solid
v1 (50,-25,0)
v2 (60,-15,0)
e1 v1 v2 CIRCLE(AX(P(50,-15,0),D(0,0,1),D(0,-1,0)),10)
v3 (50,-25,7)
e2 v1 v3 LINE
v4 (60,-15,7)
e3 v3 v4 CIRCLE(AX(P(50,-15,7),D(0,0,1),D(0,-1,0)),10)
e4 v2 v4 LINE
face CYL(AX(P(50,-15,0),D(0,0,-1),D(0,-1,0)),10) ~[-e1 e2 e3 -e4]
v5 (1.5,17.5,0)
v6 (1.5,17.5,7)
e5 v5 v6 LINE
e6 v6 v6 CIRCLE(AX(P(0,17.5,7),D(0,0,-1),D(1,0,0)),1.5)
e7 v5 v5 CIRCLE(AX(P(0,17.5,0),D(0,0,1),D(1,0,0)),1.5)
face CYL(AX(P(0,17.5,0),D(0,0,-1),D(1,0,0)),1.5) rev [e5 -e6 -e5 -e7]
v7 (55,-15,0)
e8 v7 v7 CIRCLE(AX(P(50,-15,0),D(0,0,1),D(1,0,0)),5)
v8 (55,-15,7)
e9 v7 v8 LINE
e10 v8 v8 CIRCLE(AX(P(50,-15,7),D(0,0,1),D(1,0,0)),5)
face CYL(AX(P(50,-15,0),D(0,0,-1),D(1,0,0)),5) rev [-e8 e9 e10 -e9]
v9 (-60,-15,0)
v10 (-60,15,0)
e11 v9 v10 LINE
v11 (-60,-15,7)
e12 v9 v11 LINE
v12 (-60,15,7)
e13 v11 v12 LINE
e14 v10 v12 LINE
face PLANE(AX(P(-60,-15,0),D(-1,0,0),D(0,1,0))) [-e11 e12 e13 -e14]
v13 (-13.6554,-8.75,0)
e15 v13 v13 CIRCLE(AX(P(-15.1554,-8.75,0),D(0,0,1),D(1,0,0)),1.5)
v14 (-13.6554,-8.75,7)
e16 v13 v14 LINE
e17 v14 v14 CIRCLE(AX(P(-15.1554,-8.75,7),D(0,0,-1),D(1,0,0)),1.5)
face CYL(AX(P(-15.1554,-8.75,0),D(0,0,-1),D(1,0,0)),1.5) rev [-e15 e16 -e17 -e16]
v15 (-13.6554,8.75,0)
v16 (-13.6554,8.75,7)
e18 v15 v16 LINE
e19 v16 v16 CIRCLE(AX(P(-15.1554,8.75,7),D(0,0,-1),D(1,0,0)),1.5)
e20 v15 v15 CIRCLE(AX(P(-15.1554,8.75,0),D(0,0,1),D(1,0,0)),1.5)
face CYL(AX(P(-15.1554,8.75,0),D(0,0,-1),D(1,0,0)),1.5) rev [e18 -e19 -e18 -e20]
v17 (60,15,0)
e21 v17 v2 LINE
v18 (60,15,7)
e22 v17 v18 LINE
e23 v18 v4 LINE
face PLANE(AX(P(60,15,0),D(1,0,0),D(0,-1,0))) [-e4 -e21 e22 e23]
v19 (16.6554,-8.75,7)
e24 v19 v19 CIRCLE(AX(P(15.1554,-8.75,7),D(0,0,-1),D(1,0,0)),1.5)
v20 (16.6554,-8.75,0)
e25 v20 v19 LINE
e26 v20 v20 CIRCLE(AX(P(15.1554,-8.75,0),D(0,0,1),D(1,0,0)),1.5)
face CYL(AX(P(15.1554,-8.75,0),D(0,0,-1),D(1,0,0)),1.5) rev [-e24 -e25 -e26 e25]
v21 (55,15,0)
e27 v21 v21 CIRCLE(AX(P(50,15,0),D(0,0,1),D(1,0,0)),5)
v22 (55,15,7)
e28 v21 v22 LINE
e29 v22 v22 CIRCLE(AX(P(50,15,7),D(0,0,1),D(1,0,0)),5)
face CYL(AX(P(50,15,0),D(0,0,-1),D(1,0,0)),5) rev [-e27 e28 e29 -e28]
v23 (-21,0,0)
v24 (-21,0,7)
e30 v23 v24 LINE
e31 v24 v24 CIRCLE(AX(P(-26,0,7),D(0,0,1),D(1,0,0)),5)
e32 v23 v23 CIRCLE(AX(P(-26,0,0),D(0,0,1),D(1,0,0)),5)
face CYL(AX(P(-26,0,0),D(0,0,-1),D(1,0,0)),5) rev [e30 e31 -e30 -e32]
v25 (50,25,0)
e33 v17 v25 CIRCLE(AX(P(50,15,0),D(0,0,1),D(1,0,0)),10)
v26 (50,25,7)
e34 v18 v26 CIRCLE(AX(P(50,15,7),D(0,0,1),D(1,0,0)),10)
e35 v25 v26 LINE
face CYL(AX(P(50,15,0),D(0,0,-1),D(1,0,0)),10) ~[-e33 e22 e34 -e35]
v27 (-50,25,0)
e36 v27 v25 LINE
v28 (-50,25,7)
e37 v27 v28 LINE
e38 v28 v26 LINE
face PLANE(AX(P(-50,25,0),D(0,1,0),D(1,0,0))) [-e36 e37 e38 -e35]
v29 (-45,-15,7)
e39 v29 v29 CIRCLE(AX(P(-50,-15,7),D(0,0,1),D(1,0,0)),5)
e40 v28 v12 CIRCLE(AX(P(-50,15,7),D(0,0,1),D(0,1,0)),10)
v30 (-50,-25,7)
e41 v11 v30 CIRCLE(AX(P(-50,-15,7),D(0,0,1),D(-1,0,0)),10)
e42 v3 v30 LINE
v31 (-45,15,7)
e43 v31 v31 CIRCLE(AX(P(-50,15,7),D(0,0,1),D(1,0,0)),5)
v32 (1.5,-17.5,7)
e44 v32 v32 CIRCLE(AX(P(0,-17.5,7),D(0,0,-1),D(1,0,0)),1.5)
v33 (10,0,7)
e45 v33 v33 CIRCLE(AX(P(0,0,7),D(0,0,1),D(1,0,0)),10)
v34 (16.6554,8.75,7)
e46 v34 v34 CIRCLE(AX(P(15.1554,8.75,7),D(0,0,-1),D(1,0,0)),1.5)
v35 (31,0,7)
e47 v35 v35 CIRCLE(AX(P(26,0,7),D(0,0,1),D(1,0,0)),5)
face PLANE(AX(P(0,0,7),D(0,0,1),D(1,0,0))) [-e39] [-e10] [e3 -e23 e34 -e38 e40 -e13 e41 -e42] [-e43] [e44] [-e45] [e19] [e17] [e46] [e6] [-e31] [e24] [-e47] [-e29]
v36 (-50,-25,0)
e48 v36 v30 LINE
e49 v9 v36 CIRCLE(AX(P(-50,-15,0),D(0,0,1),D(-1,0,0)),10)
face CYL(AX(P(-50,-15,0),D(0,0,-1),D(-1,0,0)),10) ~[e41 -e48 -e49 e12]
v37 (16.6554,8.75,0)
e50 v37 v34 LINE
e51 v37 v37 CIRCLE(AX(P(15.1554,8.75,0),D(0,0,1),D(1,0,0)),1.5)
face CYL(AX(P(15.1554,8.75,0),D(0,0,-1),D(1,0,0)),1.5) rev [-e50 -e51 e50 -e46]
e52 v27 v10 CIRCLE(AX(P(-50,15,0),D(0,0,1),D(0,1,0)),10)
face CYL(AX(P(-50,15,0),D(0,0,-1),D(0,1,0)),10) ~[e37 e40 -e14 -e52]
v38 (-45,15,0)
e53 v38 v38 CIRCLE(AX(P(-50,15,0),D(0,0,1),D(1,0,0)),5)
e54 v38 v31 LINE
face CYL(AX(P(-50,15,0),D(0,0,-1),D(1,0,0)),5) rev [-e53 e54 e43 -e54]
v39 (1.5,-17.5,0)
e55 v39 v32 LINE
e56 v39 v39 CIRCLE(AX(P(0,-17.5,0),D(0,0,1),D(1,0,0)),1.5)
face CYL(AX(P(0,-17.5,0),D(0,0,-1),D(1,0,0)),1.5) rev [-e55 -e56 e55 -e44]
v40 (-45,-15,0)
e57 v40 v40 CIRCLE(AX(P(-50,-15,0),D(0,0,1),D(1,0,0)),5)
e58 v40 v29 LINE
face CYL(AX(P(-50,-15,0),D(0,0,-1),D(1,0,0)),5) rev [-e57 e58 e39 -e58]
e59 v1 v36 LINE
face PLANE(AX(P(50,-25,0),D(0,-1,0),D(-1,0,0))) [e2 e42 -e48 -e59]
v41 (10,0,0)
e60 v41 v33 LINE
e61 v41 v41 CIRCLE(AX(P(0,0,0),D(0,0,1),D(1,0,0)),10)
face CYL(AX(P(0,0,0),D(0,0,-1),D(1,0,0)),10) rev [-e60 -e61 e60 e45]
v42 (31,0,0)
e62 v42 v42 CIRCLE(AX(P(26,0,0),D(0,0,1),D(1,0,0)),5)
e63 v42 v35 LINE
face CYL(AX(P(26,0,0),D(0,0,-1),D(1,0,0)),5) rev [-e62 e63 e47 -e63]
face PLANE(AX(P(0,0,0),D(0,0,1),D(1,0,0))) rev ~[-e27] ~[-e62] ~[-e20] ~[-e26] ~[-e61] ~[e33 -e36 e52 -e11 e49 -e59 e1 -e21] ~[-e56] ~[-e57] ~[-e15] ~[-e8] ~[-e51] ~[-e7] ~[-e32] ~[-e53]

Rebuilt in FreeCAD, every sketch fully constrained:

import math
import FreeCAD as App
import Part
import Sketcher
from FreeCAD import Vector
Q = App.Units.Quantity

doc = App.newDocument("Part")
params = doc.addObject("Spreadsheet::Sheet", "Params")
for row, (alias, value) in enumerate([
    ("sketch1_width", "3.937 in"),
    ("pad1_length", "0.2755906 in"),
], start=1):
    params.set(f"A{row}", alias)
    params.set(f"B{row}", "=" + value)
    params.setAlias(f"B{row}", alias)

body = doc.addObject("PartDesign::Body", "Body")

sketch1 = body.newObject("Sketcher::SketchObject", "Sketch")
sketch1.AttachmentSupport = (doc.getObject("XY_Plane"), [""])
sketch1.MapMode = "FlatFace"
sketch1.addGeometry(Part.LineSegment(Vector(-50, -25, 0), Vector(50, -25, 0)), False)
sketch1.addGeometry(Part.ArcOfCircle(Part.Circle(Vector(50, -15, 0), Vector(0, 0, 1), 10), math.radians(-90), math.radians(0)), False)
sketch1.addGeometry(Part.LineSegment(Vector(60, -15, 0), Vector(60, 15, 0)), False)
sketch1.addGeometry(Part.ArcOfCircle(Part.Circle(Vector(50, 15, 0), Vector(0, 0, 1), 10), math.radians(0), math.radians(90)), False)
sketch1.addGeometry(Part.LineSegment(Vector(50, 25, 0), Vector(-50, 25, 0)), False)
sketch1.addGeometry(Part.ArcOfCircle(Part.Circle(Vector(-50, 15, 0), Vector(0, 0, 1), 10), math.radians(90), math.radians(180)), False)
sketch1.addGeometry(Part.LineSegment(Vector(-60, 15, 0), Vector(-60, -15, 0)), False)
sketch1.addGeometry(Part.ArcOfCircle(Part.Circle(Vector(-50, -15, 0), Vector(0, 0, 1), 10), math.radians(180), math.radians(270)), False)
sketch1.addGeometry(Part.Circle(Vector(-50, -15, 0), Vector(0, 0, 1), 5), False)
sketch1.addGeometry(Part.Circle(Vector(50, -15, 0), Vector(0, 0, 1), 5), False)
sketch1.addGeometry(Part.Circle(Vector(-26, 0, 0), Vector(0, 0, 1), 5), False)
sketch1.addGeometry(Part.Circle(Vector(-50, 15, 0), Vector(0, 0, 1), 5), False)
sketch1.addGeometry(Part.Circle(Vector(0, 17.5, 0), Vector(0, 0, 1), 1.5), False)
sketch1.addGeometry(Part.Circle(Vector(-15.2, 8.8, 0), Vector(0, 0, 1), 1.5), False)
sketch1.addGeometry(Part.Circle(Vector(-15.2, -8.8, 0), Vector(0, 0, 1), 1.5), False)
sketch1.addGeometry(Part.Circle(Vector(0, -17.5, 0), Vector(0, 0, 1), 1.5), False)
sketch1.addGeometry(Part.Circle(Vector(15.2, -8.8, 0), Vector(0, 0, 1), 1.5), False)
sketch1.addGeometry(Part.Circle(Vector(15.2, 8.8, 0), Vector(0, 0, 1), 1.5), False)
sketch1.addGeometry(Part.Circle(Vector(26, 0, 0), Vector(0, 0, 1), 5), False)
sketch1.addGeometry(Part.Circle(Vector(50, 15, 0), Vector(0, 0, 1), 5), False)
sketch1.addGeometry(Part.Circle(Vector(0, 0, 0), Vector(0, 0, 1), 10), False)
sketch1.addConstraint(Sketcher.Constraint("Tangent", 0, 2, 1, 1))
sketch1.addConstraint(Sketcher.Constraint("Tangent", 1, 2, 2, 1))
sketch1.addConstraint(Sketcher.Constraint("Tangent", 2, 2, 3, 1))
sketch1.addConstraint(Sketcher.Constraint("Tangent", 3, 2, 4, 1))
sketch1.addConstraint(Sketcher.Constraint("Tangent", 4, 2, 5, 1))
sketch1.addConstraint(Sketcher.Constraint("Tangent", 5, 2, 6, 1))
sketch1.addConstraint(Sketcher.Constraint("Tangent", 6, 2, 7, 1))
sketch1.addConstraint(Sketcher.Constraint("Tangent", 7, 2, 0, 1))
sketch1.addConstraint(Sketcher.Constraint("Horizontal", 0))
sketch1.addConstraint(Sketcher.Constraint("Vertical", 2))
sketch1.addConstraint(Sketcher.Constraint("Horizontal", 4))
sketch1.addConstraint(Sketcher.Constraint("Vertical", 6))
sketch1.addConstraint(Sketcher.Constraint("Coincident", 20, 3, -1, 1))
sketch1.addConstraint(Sketcher.Constraint("Coincident", 8, 3, 7, 3))
sketch1.addConstraint(Sketcher.Constraint("Coincident", 9, 3, 1, 3))
sketch1.addConstraint(Sketcher.Constraint("Coincident", 11, 3, 5, 3))
sketch1.addConstraint(Sketcher.Constraint("Coincident", 19, 3, 3, 3))
sketch1.addConstraint(Sketcher.Constraint("Equal", 1, 3))
sketch1.addConstraint(Sketcher.Constraint("Equal", 3, 5))
sketch1.addConstraint(Sketcher.Constraint("Equal", 5, 7))
sketch1.addConstraint(Sketcher.Constraint("Equal", 8, 9))
sketch1.addConstraint(Sketcher.Constraint("Equal", 9, 10))
sketch1.addConstraint(Sketcher.Constraint("Equal", 10, 11))
sketch1.addConstraint(Sketcher.Constraint("Equal", 12, 13))
sketch1.addConstraint(Sketcher.Constraint("Equal", 13, 14))
sketch1.addConstraint(Sketcher.Constraint("Equal", 14, 15))
sketch1.addConstraint(Sketcher.Constraint("Equal", 15, 16))
sketch1.addConstraint(Sketcher.Constraint("Equal", 16, 17))
sketch1.addConstraint(Sketcher.Constraint("Equal", 11, 18))
sketch1.addConstraint(Sketcher.Constraint("Equal", 18, 19))
sketch1.addConstraint(Sketcher.Constraint("Equal", 7, 20))
sketch1.addConstraint(Sketcher.Constraint("Symmetric", 1, 3, 5, 3, -1, 1))
sketch1.addConstraint(Sketcher.Constraint("Symmetric", 12, 3, 15, 3, -1, 1))
sketch1.addConstraint(Sketcher.Constraint("Symmetric", 13, 3, 16, 3, -1, 1))
sketch1.addConstraint(Sketcher.Constraint("Symmetric", 14, 3, 17, 3, -1, 1))
sketch1.addConstraint(Sketcher.Constraint("Symmetric", 10, 3, 18, 3, -1, 1))
sketch1.addConstraint(Sketcher.Constraint("Symmetric", 14, 3, 16, 3, -2))
sketch1.addConstraint(Sketcher.Constraint("PointOnObject", 10, 3, -1))
sketch1.addConstraint(Sketcher.Constraint("PointOnObject", 12, 3, -2))
sketch1.addConstraint(Sketcher.Constraint("Diameter", 8, Q("0.3937 in")))
sketch1.addConstraint(Sketcher.Constraint("Diameter", 12, Q("0.1181 in")))
sketch1.addConstraint(Sketcher.Constraint("Diameter", 20, Q("0.7874 in")))
sketch1.addConstraint(Sketcher.Constraint("DistanceX", 0, 1, 0, 2, Q("3.937 in")))
sketch1.addConstraint(Sketcher.Constraint("DistanceX", 10, 3, -1, 1, Q("26 mm")))
sketch1.addConstraint(Sketcher.Constraint("DistanceY", 15, 3, 12, 3, Q("35 mm")))
sketch1.addConstraint(Sketcher.Constraint("DistanceY", 2, 1, 2, 2, Q("1.1811 in")))
sketch1.addConstraint(Sketcher.Constraint("DistanceY", -1, 1, 13, 3, Q("0.3445 in")))
sketch1.addConstraint(Sketcher.Constraint("DistanceX", 13, 3, -1, 1, Q("15.1554 mm")))
sketch1.setExpression("Constraints[42]", "Params.sketch1_width")
pad1 = body.newObject("PartDesign::Pad", "Pad")
pad1.Profile = sketch1
pad1.setExpression("Length", "Params.pad1_length")

doc.recompute()
